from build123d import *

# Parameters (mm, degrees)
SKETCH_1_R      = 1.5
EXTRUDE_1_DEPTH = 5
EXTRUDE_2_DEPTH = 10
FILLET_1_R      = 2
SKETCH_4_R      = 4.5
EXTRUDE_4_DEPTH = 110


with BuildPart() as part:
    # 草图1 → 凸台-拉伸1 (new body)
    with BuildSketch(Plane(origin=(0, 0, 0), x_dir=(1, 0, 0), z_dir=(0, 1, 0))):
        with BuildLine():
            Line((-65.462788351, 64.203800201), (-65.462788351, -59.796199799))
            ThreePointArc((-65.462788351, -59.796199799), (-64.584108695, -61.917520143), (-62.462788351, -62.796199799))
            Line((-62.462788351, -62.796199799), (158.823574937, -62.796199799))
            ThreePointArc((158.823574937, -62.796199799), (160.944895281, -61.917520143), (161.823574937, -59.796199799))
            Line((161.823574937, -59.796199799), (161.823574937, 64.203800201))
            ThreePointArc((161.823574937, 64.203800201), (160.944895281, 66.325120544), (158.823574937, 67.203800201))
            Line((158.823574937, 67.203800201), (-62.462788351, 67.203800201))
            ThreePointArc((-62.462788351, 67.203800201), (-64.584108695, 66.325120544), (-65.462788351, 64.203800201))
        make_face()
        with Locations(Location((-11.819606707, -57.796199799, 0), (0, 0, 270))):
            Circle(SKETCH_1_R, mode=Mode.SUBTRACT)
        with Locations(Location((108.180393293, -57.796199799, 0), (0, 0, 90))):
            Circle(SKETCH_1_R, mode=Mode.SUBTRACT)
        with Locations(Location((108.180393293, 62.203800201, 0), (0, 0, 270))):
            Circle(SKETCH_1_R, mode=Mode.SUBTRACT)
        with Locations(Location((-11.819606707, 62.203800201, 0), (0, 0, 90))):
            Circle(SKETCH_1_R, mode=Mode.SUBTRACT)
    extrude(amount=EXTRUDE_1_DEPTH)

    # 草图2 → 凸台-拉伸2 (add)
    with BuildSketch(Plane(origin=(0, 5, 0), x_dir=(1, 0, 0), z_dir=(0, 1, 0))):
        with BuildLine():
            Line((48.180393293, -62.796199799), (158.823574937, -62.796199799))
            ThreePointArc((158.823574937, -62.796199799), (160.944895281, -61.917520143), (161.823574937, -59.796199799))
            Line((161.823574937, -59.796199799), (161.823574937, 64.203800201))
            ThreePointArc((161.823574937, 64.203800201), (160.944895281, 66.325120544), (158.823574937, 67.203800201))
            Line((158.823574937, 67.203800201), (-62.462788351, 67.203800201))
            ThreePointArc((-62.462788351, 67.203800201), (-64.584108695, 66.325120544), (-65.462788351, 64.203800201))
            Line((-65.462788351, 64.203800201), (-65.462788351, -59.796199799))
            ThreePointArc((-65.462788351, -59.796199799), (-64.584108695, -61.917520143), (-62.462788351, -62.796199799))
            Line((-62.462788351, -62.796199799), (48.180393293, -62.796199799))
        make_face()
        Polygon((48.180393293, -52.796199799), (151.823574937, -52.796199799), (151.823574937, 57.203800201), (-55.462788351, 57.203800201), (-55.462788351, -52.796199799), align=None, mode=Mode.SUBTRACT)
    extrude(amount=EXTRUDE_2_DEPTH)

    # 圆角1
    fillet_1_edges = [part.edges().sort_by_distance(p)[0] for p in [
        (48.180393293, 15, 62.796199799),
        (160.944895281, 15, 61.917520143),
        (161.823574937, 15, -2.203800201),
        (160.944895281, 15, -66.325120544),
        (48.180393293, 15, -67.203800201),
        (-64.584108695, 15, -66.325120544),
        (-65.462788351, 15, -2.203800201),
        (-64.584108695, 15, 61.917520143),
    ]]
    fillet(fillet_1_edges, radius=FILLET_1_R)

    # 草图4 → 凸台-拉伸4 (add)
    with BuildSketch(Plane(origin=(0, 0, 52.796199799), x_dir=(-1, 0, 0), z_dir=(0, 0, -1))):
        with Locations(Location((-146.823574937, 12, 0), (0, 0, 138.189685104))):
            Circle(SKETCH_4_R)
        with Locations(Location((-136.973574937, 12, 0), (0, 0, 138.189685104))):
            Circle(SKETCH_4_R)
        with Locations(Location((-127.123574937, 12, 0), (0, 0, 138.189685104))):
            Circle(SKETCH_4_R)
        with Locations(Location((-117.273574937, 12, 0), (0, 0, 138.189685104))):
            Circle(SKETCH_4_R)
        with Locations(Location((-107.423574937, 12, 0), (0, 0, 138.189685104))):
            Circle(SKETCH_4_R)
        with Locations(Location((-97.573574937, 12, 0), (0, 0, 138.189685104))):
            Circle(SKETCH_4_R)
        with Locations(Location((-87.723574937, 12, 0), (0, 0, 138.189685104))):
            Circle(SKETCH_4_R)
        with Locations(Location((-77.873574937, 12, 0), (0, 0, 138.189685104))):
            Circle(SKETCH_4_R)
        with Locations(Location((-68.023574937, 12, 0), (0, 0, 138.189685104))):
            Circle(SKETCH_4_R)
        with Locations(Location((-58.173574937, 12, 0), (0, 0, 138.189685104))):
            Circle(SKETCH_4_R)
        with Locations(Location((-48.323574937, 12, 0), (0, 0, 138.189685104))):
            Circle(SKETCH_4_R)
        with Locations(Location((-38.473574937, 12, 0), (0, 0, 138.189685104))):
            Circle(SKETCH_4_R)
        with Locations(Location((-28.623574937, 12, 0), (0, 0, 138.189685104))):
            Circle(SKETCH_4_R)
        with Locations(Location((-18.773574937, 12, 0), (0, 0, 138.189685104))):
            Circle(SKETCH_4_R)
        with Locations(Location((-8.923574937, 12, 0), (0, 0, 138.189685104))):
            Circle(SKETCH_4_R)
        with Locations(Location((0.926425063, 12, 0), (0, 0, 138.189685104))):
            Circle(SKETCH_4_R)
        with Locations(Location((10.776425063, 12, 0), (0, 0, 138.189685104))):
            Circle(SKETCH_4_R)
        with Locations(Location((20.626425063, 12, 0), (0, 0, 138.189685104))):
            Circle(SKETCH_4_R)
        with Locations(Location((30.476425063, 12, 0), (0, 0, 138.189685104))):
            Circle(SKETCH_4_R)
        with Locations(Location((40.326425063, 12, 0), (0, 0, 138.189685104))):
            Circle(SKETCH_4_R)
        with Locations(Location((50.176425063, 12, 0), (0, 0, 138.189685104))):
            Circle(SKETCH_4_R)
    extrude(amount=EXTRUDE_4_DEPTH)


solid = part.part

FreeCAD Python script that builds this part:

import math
import FreeCAD as App
import Part
import Sketcher


def edges_at(feature, points):
    """Names of the edges that pass closest to the given points."""
    edges = feature.Shape.Edges
    near = lambda p: min(range(len(edges)), key=lambda i: edges[i].distToShape(Part.Vertex(*p))[0])
    return sorted({f"Edge{near(p) + 1}" for p in points})


def add_polygon(sketch, points):
    """Adds a closed chain of lines whose ends are joined by coincident constraints."""
    first, n = sketch.GeometryCount, len(points)
    for a, b in zip(points, points[1:] + points[:1]):
        sketch.addGeometry(Part.LineSegment(App.Vector(*a, 0), App.Vector(*b, 0)), False)
    for i in range(n):
        sketch.addConstraint(Sketcher.Constraint("Coincident", first + i, 2, first + (i + 1) % n, 1))

doc = App.newDocument("Part")
body = doc.addObject("PartDesign::Body", "Body")

# Sketch on XZ plane
sketch1 = body.newObject("Sketcher::SketchObject", "Sketch")
sketch1.AttachmentSupport = (doc.getObject("XZ_Plane"), [""])
sketch1.MapMode = "FlatFace"
sketch1.addGeometry([
    Part.LineSegment(App.Vector(-65.5, -64.2, 0), App.Vector(-65.5, 59.8, 0)),  # 0
    Part.ArcOfCircle(Part.Circle(App.Vector(-62.5, 59.8, 0), App.Vector(0, 0, 1), 3), math.radians(90), math.radians(180)),  # 1
    Part.LineSegment(App.Vector(-62.5, 62.8, 0), App.Vector(158.8, 62.8, 0)),  # 2
    Part.ArcOfCircle(Part.Circle(App.Vector(158.8, 59.8, 0), App.Vector(0, 0, 1), 3), math.radians(0), math.radians(90)),  # 3
    Part.LineSegment(App.Vector(161.8, 59.8, 0), App.Vector(161.8, -64.2, 0)),  # 4
    Part.ArcOfCircle(Part.Circle(App.Vector(158.8, -64.2, 0), App.Vector(0, 0, 1), 3), math.radians(-90), math.radians(0)),  # 5
    Part.LineSegment(App.Vector(158.8, -67.2, 0), App.Vector(-62.5, -67.2, 0)),  # 6
    Part.ArcOfCircle(Part.Circle(App.Vector(-62.5, -64.2, 0), App.Vector(0, 0, 1), 3), math.radians(180), math.radians(270)),  # 7
    Part.Circle(App.Vector(-11.8, 57.8, 0), App.Vector(0, 0, 1), 1.5),  # 8
    Part.Circle(App.Vector(108.2, 57.8, 0), App.Vector(0, 0, 1), 1.5),  # 9
    Part.Circle(App.Vector(-11.8, -62.2, 0), App.Vector(0, 0, 1), 1.5),  # 10
    Part.Circle(App.Vector(108.2, -62.2, 0), App.Vector(0, 0, 1), 1.5),  # 11
], False)
sketch1.addConstraint([
    Sketcher.Constraint("Tangent", 0, 2, 1, 2),
    Sketcher.Constraint("Tangent", 1, 1, 2, 1),
    Sketcher.Constraint("Tangent", 2, 2, 3, 2),
    Sketcher.Constraint("Tangent", 3, 1, 4, 1),
    Sketcher.Constraint("Tangent", 4, 2, 5, 2),
    Sketcher.Constraint("Tangent", 5, 1, 6, 1),
    Sketcher.Constraint("Tangent", 6, 2, 7, 2),
    Sketcher.Constraint("Tangent", 7, 1, 0, 1),
    Sketcher.Constraint("Vertical", 0),
    Sketcher.Constraint("Horizontal", 2),
    Sketcher.Constraint("Vertical", 4),
    Sketcher.Constraint("Horizontal", 6),
    Sketcher.Constraint("Equal", 1, 3),
    Sketcher.Constraint("Equal", 3, 5),
    Sketcher.Constraint("Equal", 5, 7),
    Sketcher.Constraint("Equal", 8, 9),
    Sketcher.Constraint("Equal", 9, 10),
    Sketcher.Constraint("Equal", 10, 11),
    Sketcher.Constraint("Horizontal", 8, 3, 9, 3),
    Sketcher.Constraint("Horizontal", 10, 3, 11, 3),
    Sketcher.Constraint("Vertical", 8, 3, 10, 3),
    Sketcher.Constraint("Vertical", 9, 3, 11, 3),
    Sketcher.Constraint("Diameter", 8, 3.0),
    Sketcher.Constraint("Radius", 1, 3.0),
    Sketcher.Constraint("DistanceY", 0, 1, 0, 2, 124.0),
    Sketcher.Constraint("DistanceY", 8, 3, 1, 3, 2.0),
    Sketcher.Constraint("DistanceX", 8, 3, 9, 3, 120.0),
    Sketcher.Constraint("DistanceY", 7, 3, 10, 3, 2.0),
    Sketcher.Constraint("DistanceY", -1, 1, 1, 3, 59.7962),
    Sketcher.Constraint("DistanceX", 2, 1, 2, 2, 221.286363),
    Sketcher.Constraint("DistanceX", 1, 3, -1, 1, 62.462788),
    Sketcher.Constraint("DistanceX", 1, 3, 8, 3, 50.643182),
])
pad1 = body.newObject("PartDesign::Pad", "Pad")
pad1.Profile = sketch1
pad1.Length = 5
pad1.Reversed = True

# Sketch on XZ plane
sketch2 = body.newObject("Sketcher::SketchObject", "Sketch001")
sketch2.AttachmentSupport = (doc.getObject("XZ_Plane"), [""])
sketch2.MapMode = "FlatFace"
sketch2.AttachmentOffset = App.Placement(App.Vector(0, 0, -5), App.Rotation())
sketch2.addGeometry(Part.ArcOfCircle(Part.Circle(App.Vector(158.8, 59.8, 0), App.Vector(0, 0, 1), 3), math.radians(0), math.radians(90)), False)  # 0
sketch2.addGeometry(Part.LineSegment(App.Vector(161.8, 59.8, 0), App.Vector(161.8, -64.2, 0)), False)  # 1
sketch2.addGeometry(Part.ArcOfCircle(Part.Circle(App.Vector(158.8, -64.2, 0), App.Vector(0, 0, 1), 3), math.radians(-90), math.radians(0)), False)  # 2
sketch2.addGeometry(Part.LineSegment(App.Vector(158.8, -67.2, 0), App.Vector(-62.5, -67.2, 0)), False)  # 3
sketch2.addGeometry(Part.ArcOfCircle(Part.Circle(App.Vector(-62.5, -64.2, 0), App.Vector(0, 0, 1), 3), math.radians(180), math.radians(270)), False)  # 4
sketch2.addGeometry(Part.LineSegment(App.Vector(-65.5, -64.2, 0), App.Vector(-65.5, 59.8, 0)), False)  # 5
sketch2.addGeometry(Part.ArcOfCircle(Part.Circle(App.Vector(-62.5, 59.8, 0), App.Vector(0, 0, 1), 3), math.radians(90), math.radians(180)), False)  # 6
sketch2.addGeometry(Part.LineSegment(App.Vector(-62.5, 62.8, 0), App.Vector(158.8, 62.8, 0)), False)  # 7
add_polygon(sketch2, [(151.8, 52.8), (-55.5, 52.8), (-55.5, -57.2), (151.8, -57.2)])  # lines 8-11
sketch2.addConstraint([
    Sketcher.Constraint("Tangent", 0, 1, 1, 1),
    Sketcher.Constraint("Tangent", 1, 2, 2, 2),
    Sketcher.Constraint("Tangent", 2, 1, 3, 1),
    Sketcher.Constraint("Tangent", 3, 2, 4, 2),
    Sketcher.Constraint("Tangent", 4, 1, 5, 1),
    Sketcher.Constraint("Tangent", 5, 2, 6, 2),
    Sketcher.Constraint("Tangent", 6, 1, 7, 1),
    Sketcher.Constraint("Tangent", 7, 2, 0, 2),
    Sketcher.Constraint("Vertical", 1),
    Sketcher.Constraint("Horizontal", 3),
    Sketcher.Constraint("Vertical", 5),
    Sketcher.Constraint("Horizontal", 7),
    Sketcher.Constraint("Horizontal", 8),
    Sketcher.Constraint("Vertical", 9),
    Sketcher.Constraint("Horizontal", 10),
    Sketcher.Constraint("Vertical", 11),
    Sketcher.Constraint("Equal", 0, 2),
    Sketcher.Constraint("Equal", 2, 4),
    Sketcher.Constraint("Equal", 4, 6),
    Sketcher.Constraint("Radius", 0, 3.0),
    Sketcher.Constraint("DistanceY", 1, 2, 1, 1, 124.0),
    Sketcher.Constraint("DistanceY", 9, 2, 9, 1, 110.0),
    Sketcher.Constraint("DistanceX", 6, 3, 8, 2, 7.0),
    Sketcher.Constraint("DistanceY", 8, 2, 6, 3, 7.0),
    Sketcher.Constraint("DistanceX", 10, 2, 2, 3, 7.0),
    Sketcher.Constraint("DistanceY", -1, 1, 0, 3, 59.7962),
    Sketcher.Constraint("DistanceX", 3, 2, 3, 1, 221.286363),
    Sketcher.Constraint("DistanceX", 4, 3, -1, 1, 62.462788),
])
pad2 = body.newObject("PartDesign::Pad", "Pad001")
pad2.Profile = sketch2
pad2.Length = 10
pad2.Reversed = True
doc.recompute()

fillet = body.newObject("PartDesign::Fillet", "Fillet")
fillet.Base = (pad2, edges_at(pad2, [
    (48.18, 15, 62.796),
    (160.945, 15, 61.918),
    (161.824, 15, -2.204),
    (160.945, 15, -66.325),
    (48.18, 15, -67.204),
    (-64.584, 15, -66.325),
    (-65.463, 15, -2.204),
    (-64.584, 15, 61.918),
]))
fillet.Radius = 2

# Sketch on XY plane
sketch3 = body.newObject("Sketcher::SketchObject", "Sketch002")
sketch3.AttachmentSupport = (doc.getObject("XY_Plane"), [""])
sketch3.MapMode = "FlatFace"
sketch3.AttachmentOffset = App.Placement(App.Vector(0, 0, 52.7962), App.Rotation())
sketch3.addGeometry([
    Part.Circle(App.Vector(146.8, 12, 0), App.Vector(0, 0, 1), 4.5),  # 0
    Part.Circle(App.Vector(137, 12, 0), App.Vector(0, 0, 1), 4.5),  # 1
    Part.Circle(App.Vector(127.1, 12, 0), App.Vector(0, 0, 1), 4.5),  # 2
    Part.Circle(App.Vector(117.3, 12, 0), App.Vector(0, 0, 1), 4.5),  # 3
    Part.Circle(App.Vector(107.4, 12, 0), App.Vector(0, 0, 1), 4.5),  # 4
    Part.Circle(App.Vector(97.6, 12, 0), App.Vector(0, 0, 1), 4.5),  # 5
    Part.Circle(App.Vector(87.7, 12, 0), App.Vector(0, 0, 1), 4.5),  # 6
    Part.Circle(App.Vector(77.9, 12, 0), App.Vector(0, 0, 1), 4.5),  # 7
    Part.Circle(App.Vector(68, 12, 0), App.Vector(0, 0, 1), 4.5),  # 8
    Part.Circle(App.Vector(58.2, 12, 0), App.Vector(0, 0, 1), 4.5),  # 9
    Part.Circle(App.Vector(48.3, 12, 0), App.Vector(0, 0, 1), 4.5),  # 10
    Part.Circle(App.Vector(38.5, 12, 0), App.Vector(0, 0, 1), 4.5),  # 11
    Part.Circle(App.Vector(28.6, 12, 0), App.Vector(0, 0, 1), 4.5),  # 12
    Part.Circle(App.Vector(18.8, 12, 0), App.Vector(0, 0, 1), 4.5),  # 13
    Part.Circle(App.Vector(8.9, 12, 0), App.Vector(0, 0, 1), 4.5),  # 14
    Part.Circle(App.Vector(-0.9, 12, 0), App.Vector(0, 0, 1), 4.5),  # 15
    Part.Circle(App.Vector(-10.8, 12, 0), App.Vector(0, 0, 1), 4.5),  # 16
    Part.Circle(App.Vector(-20.6, 12, 0), App.Vector(0, 0, 1), 4.5),  # 17
    Part.Circle(App.Vector(-30.5, 12, 0), App.Vector(0, 0, 1), 4.5),  # 18
    Part.Circle(App.Vector(-40.3, 12, 0), App.Vector(0, 0, 1), 4.5),  # 19
    Part.Circle(App.Vector(-50.2, 12, 0), App.Vector(0, 0, 1), 4.5),  # 20
], False)
sketch3.addConstraint([
    Sketcher.Constraint("Equal", 0, 1),
    Sketcher.Constraint("Equal", 1, 2),
    Sketcher.Constraint("Equal", 2, 3),
    Sketcher.Constraint("Equal", 3, 4),
    Sketcher.Constraint("Equal", 4, 5),
    Sketcher.Constraint("Equal", 5, 6),
    Sketcher.Constraint("Equal", 6, 7),
    Sketcher.Constraint("Equal", 7, 8),
    Sketcher.Constraint("Equal", 8, 9),
    Sketcher.Constraint("Equal", 9, 10),
    Sketcher.Constraint("Equal", 10, 11),
    Sketcher.Constraint("Equal", 11, 12),
    Sketcher.Constraint("Equal", 12, 13),
    Sketcher.Constraint("Equal", 13, 14),
    Sketcher.Constraint("Equal", 14, 15),
    Sketcher.Constraint("Equal", 15, 16),
    Sketcher.Constraint("Equal", 16, 17),
    Sketcher.Constraint("Equal", 17, 18),
    Sketcher.Constraint("Equal", 18, 19),
    Sketcher.Constraint("Equal", 19, 20),
    Sketcher.Constraint("Horizontal", 0, 3, 1, 3),
    Sketcher.Constraint("Horizontal", 1, 3, 2, 3),
    Sketcher.Constraint("Horizontal", 2, 3, 3, 3),
    Sketcher.Constraint("Horizontal", 3, 3, 4, 3),
    Sketcher.Constraint("Horizontal", 4, 3, 5, 3),
    Sketcher.Constraint("Horizontal", 5, 3, 6, 3),
    Sketcher.Constraint("Horizontal", 6, 3, 7, 3),
    Sketcher.Constraint("Horizontal", 7, 3, 8, 3),
    Sketcher.Constraint("Horizontal", 8, 3, 9, 3),
    Sketcher.Constraint("Horizontal", 9, 3, 10, 3),
    Sketcher.Constraint("Horizontal", 10, 3, 11, 3),
    Sketcher.Constraint("Horizontal", 11, 3, 12, 3),
    Sketcher.Constraint("Horizontal", 12, 3, 13, 3),
    Sketcher.Constraint("Horizontal", 13, 3, 14, 3),
    Sketcher.Constraint("Horizontal", 14, 3, 15, 3),
    Sketcher.Constraint("Horizontal", 15, 3, 16, 3),
    Sketcher.Constraint("Horizontal", 16, 3, 17, 3),
    Sketcher.Constraint("Horizontal", 17, 3, 18, 3),
    Sketcher.Constraint("Horizontal", 18, 3, 19, 3),
    Sketcher.Constraint("Horizontal", 19, 3, 20, 3),
    Sketcher.Constraint("Diameter", 0, 9.0),
    Sketcher.Constraint("DistanceY", -1, 1, 0, 3, 12.0),
    Sketcher.Constraint("DistanceX", 2, 3, 0, 3, 19.7),
    Sketcher.Constraint("DistanceX", 3, 3, 1, 3, 19.7),
    Sketcher.Constraint("DistanceX", 4, 3, 2, 3, 19.7),
    Sketcher.Constraint("DistanceX", 5, 3, 3, 3, 19.7),
    Sketcher.Constraint("DistanceX", 6, 3, 4, 3, 19.7),
    Sketcher.Constraint("DistanceX", 7, 3, 5, 3, 19.7),
    Sketcher.Constraint("DistanceX", 8, 3, 6, 3, 19.7),
    Sketcher.Constraint("DistanceX", 9, 3, 7, 3, 19.7),
    Sketcher.Constraint("DistanceX", 10, 3, 8, 3, 19.7),
    Sketcher.Constraint("DistanceX", 11, 3, 9, 3, 19.7),
    Sketcher.Constraint("DistanceX", 12, 3, 10, 3, 19.7),
    Sketcher.Constraint("DistanceX", 13, 3, 11, 3, 19.7),
    Sketcher.Constraint("DistanceX", 14, 3, 12, 3, 19.7),
    Sketcher.Constraint("DistanceX", 15, 3, 13, 3, 19.7),
    Sketcher.Constraint("DistanceX", 16, 3, 14, 3, 19.7),
    Sketcher.Constraint("DistanceX", 17, 3, 15, 3, 19.7),
    Sketcher.Constraint("DistanceX", 18, 3, 16, 3, 19.7),
    Sketcher.Constraint("DistanceX", 19, 3, 17, 3, 19.7),
    Sketcher.Constraint("DistanceX", 20, 3, 18, 3, 19.7),
    Sketcher.Constraint("DistanceX", 1, 3, 0, 3, 9.85),
    Sketcher.Constraint("DistanceX", -1, 1, 0, 3, 146.823575),
])
pad3 = body.newObject("PartDesign::Pad", "Pad002")
pad3.Profile = sketch3
pad3.Length = 110
pad3.Reversed = True

doc.recompute()
